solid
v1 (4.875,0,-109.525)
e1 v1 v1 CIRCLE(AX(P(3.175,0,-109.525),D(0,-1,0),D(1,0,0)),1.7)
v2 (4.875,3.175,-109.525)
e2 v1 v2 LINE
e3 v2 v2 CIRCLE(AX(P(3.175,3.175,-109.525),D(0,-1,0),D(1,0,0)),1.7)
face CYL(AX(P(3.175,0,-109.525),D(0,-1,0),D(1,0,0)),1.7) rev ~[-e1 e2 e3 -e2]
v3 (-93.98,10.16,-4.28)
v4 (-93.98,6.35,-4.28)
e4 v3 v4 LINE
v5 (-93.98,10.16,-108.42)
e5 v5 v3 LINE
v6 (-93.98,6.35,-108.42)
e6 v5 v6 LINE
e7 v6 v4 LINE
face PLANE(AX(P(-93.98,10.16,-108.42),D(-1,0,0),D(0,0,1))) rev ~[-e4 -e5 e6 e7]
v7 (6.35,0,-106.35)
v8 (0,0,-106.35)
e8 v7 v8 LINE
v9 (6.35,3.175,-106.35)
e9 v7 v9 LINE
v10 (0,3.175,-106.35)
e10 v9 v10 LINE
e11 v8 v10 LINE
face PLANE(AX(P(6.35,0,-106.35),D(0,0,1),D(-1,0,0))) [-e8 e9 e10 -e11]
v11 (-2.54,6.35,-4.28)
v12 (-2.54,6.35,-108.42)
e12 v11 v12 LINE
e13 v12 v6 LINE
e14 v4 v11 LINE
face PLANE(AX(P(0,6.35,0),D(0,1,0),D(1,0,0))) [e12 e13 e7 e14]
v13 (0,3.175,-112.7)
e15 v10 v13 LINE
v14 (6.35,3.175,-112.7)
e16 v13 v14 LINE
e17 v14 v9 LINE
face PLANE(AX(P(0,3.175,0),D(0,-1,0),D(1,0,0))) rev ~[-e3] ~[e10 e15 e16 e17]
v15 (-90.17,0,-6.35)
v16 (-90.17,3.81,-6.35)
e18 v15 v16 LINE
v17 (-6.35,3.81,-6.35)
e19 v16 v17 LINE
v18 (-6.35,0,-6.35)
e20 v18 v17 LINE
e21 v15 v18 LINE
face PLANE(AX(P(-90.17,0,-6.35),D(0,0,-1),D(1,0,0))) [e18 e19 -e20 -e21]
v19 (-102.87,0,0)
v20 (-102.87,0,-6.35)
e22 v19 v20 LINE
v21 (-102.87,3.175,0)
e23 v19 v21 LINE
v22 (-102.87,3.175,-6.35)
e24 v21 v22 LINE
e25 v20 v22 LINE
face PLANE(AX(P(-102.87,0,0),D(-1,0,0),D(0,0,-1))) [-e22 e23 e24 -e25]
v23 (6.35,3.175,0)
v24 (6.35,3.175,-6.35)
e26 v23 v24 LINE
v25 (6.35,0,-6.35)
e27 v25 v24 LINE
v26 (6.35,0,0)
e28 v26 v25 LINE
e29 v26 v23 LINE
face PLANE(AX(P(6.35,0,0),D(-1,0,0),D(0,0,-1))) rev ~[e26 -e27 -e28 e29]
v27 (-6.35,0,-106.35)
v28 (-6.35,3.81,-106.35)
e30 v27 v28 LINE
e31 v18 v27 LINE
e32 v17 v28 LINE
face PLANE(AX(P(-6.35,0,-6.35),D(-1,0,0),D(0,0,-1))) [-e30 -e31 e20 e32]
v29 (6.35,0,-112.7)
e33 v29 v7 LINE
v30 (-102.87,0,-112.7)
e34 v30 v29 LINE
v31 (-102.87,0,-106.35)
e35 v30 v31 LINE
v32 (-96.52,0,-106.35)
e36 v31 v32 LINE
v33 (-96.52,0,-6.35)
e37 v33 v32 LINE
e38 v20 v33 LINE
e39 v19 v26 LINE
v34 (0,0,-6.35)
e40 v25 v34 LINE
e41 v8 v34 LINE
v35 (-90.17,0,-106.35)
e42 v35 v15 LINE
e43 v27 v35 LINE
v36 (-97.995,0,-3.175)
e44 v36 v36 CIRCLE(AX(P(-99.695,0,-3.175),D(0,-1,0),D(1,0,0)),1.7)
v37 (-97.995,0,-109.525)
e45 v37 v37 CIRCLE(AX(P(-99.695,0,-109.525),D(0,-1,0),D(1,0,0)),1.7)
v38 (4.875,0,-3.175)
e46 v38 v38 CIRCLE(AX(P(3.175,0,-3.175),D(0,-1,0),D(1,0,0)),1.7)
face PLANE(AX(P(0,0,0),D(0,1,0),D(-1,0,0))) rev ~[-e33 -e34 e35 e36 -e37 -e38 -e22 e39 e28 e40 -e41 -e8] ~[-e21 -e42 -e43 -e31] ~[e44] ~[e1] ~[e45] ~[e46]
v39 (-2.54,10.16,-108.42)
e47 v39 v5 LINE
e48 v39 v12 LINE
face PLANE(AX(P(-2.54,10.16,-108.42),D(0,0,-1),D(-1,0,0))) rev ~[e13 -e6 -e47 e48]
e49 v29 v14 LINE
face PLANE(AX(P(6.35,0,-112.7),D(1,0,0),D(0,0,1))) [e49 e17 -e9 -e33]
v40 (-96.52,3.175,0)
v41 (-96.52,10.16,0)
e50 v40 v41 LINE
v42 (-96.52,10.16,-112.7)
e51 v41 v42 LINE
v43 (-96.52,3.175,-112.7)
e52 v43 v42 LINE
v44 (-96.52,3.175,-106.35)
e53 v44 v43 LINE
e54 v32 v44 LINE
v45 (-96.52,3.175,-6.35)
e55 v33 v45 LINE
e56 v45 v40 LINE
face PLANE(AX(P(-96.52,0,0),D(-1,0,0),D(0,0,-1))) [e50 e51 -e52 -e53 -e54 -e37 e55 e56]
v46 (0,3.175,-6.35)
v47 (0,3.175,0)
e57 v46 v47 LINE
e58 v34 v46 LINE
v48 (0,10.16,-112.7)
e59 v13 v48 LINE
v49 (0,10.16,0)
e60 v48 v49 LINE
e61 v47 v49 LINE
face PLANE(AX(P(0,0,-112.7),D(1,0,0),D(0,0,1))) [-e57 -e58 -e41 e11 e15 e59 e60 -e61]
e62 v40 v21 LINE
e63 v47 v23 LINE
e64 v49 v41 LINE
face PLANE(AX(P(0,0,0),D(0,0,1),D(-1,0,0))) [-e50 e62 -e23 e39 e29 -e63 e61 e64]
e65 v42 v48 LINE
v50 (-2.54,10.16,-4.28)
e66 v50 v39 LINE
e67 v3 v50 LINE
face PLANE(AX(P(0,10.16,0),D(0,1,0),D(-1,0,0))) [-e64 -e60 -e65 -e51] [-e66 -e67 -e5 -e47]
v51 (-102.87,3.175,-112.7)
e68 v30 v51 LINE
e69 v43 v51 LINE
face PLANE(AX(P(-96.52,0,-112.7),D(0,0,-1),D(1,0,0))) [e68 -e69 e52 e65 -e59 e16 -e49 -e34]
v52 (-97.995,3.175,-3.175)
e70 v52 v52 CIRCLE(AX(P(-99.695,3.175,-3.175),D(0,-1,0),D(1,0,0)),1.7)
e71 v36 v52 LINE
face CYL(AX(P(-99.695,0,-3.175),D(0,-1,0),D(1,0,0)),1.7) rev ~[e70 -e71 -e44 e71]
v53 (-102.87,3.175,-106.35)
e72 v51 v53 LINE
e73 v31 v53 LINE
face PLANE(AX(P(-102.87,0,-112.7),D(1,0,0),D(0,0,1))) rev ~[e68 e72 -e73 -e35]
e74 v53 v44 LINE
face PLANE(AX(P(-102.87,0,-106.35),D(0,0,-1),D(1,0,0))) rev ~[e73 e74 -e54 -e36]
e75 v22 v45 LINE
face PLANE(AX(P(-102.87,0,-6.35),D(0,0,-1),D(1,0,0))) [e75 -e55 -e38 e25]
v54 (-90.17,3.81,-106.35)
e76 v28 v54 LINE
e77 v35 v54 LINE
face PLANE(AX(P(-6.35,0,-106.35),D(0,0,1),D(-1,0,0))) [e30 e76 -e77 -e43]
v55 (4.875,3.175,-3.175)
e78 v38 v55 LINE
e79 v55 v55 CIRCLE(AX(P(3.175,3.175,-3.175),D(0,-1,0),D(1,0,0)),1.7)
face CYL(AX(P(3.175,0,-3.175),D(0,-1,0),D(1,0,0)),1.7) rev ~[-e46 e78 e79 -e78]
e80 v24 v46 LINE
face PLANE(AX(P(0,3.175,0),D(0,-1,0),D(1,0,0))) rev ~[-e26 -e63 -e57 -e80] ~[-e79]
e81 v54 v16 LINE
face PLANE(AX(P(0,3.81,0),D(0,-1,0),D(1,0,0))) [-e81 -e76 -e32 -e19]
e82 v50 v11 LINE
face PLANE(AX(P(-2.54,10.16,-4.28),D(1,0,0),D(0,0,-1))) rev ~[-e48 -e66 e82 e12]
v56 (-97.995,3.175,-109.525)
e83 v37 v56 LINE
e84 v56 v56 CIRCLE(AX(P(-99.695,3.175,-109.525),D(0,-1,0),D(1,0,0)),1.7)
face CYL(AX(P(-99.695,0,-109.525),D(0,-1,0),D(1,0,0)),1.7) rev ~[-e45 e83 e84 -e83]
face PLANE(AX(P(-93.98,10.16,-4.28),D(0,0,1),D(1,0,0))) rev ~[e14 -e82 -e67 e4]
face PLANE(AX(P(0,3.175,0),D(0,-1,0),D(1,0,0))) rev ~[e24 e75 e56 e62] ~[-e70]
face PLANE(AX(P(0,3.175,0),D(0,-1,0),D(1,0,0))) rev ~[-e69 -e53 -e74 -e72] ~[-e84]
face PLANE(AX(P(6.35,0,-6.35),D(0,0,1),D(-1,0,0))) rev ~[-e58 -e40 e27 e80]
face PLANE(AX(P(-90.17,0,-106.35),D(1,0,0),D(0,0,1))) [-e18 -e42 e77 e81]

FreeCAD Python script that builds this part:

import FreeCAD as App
import Part
import Sketcher
Q = App.Units.Quantity


def add_polygon(sketch, points):
    """Adds a closed chain of lines whose ends are joined by coincident constraints."""
    first, n = sketch.GeometryCount, len(points)
    for a, b in zip(points, points[1:] + points[:1]):
        sketch.addGeometry(Part.LineSegment(App.Vector(*a, 0), App.Vector(*b, 0)), False)
    for i in range(n):
        sketch.addConstraint(Sketcher.Constraint("Coincident", first + i, 2, first + (i + 1) % n, 1))

doc = App.newDocument("Part")
body = doc.addObject("PartDesign::Body", "Body")

# Sketch on XZ plane
sketch1 = doc.addObject("Sketcher::SketchObject", "Sketch")
body.addObject(sketch1)
sketch1.AttachmentSupport = (doc.XZ_Plane, [""])
sketch1.MapMode = "FlatFace"
add_polygon(sketch1, [(-96.52, 0), (0, 0), (0, -112.7), (-96.52, -112.7)])  # lines 0-3
sketch1.addConstraint([
    Sketcher.Constraint("Horizontal", 0),
    Sketcher.Constraint("Vertical", 1),
    Sketcher.Constraint("Horizontal", 2),
    Sketcher.Constraint("Vertical", 3),
    Sketcher.Constraint("Coincident", 0, 2, -1, 1),
    Sketcher.Constraint("DistanceX", 0, 1, 0, 2, Q("3.8 in")),
    Sketcher.Constraint("DistanceY", 1, 2, 1, 1, Q("4.437 in")),
])
pad1 = doc.addObject("PartDesign::Pad", "Pad")
body.addObject(pad1)
pad1.Profile = sketch1
pad1.Length = Q("0.4 in")
pad1.Reversed = True

# Sketch on XZ plane
sketch2 = doc.addObject("Sketcher::SketchObject", "Sketch001")
body.addObject(sketch2)
sketch2.AttachmentSupport = (doc.XZ_Plane, [""])
sketch2.MapMode = "FlatFace"
sketch2.AttachmentOffset = App.Placement(App.Vector(0, 0, -0.4 * 25.4), App.Rotation())
add_polygon(sketch2, [(-93.98, -108.42), (-93.98, -4.28), (-2.54, -4.28), (-2.54, -108.42)])  # lines 0-3
sketch2.addConstraint([
    Sketcher.Constraint("Vertical", 0),
    Sketcher.Constraint("Horizontal", 1),
    Sketcher.Constraint("Vertical", 2),
    Sketcher.Constraint("Horizontal", 3),
    Sketcher.Constraint("DistanceX", 1, 1, 1, 2, Q("3.6 in")),
    Sketcher.Constraint("DistanceY", 0, 1, 0, 2, Q("4.1 in")),
    Sketcher.Constraint("DistanceX", 0, 2, -1, 1, Q("3.7 in")),
    Sketcher.Constraint("DistanceY", 0, 2, -1, 1, Q("0.1685 in")),
])
pocket1 = doc.addObject("PartDesign::Pocket", "Pocket")
body.addObject(pocket1)
pocket1.Profile = sketch2
pocket1.Length = Q("0.15 in")
pocket1.Reversed = True

# Sketch on XZ plane
sketch3 = doc.addObject("Sketcher::SketchObject", "Sketch002")
body.addObject(sketch3)
sketch3.AttachmentSupport = (doc.XZ_Plane, [""])
sketch3.MapMode = "FlatFace"
add_polygon(sketch3, [(6.35, 0), (0, 0), (0, -6.35), (6.35, -6.35)])  # lines 0-3
sketch3.addGeometry(Part.Circle(App.Vector(3.175, -3.175, 0), App.Vector(0, 0, 1), 1.7), False)  # 4
add_polygon(sketch3, [(0, -106.35), (0, -112.7), (6.35, -112.7), (6.35, -106.35)])  # lines 5-8
sketch3.addGeometry(Part.Circle(App.Vector(3.175, -109.525, 0), App.Vector(0, 0, 1), 1.7), False)  # 9
add_polygon(sketch3, [(-96.52, -6.35), (-96.52, 0), (-102.87, 0), (-102.87, -6.35)])  # lines 10-13
sketch3.addGeometry(Part.Circle(App.Vector(-99.695, -3.175, 0), App.Vector(0, 0, 1), 1.7), False)  # 14
add_polygon(sketch3, [(-102.87, -112.7), (-96.52, -112.7), (-96.52, -106.35), (-102.87, -106.35)])  # lines 15-18
sketch3.addGeometry(Part.Circle(App.Vector(-99.695, -109.525, 0), App.Vector(0, 0, 1), 1.7), False)  # 19
sketch3.addConstraint([
    Sketcher.Constraint("Horizontal", 0),
    Sketcher.Constraint("Vertical", 1),
    Sketcher.Constraint("Horizontal", 2),
    Sketcher.Constraint("Vertical", 3),
    Sketcher.Constraint("Vertical", 5),
    Sketcher.Constraint("Horizontal", 6),
    Sketcher.Constraint("Vertical", 7),
    Sketcher.Constraint("Horizontal", 8),
    Sketcher.Constraint("Vertical", 10),
    Sketcher.Constraint("Horizontal", 11),
    Sketcher.Constraint("Vertical", 12),
    Sketcher.Constraint("Horizontal", 13),
    Sketcher.Constraint("Horizontal", 15),
    Sketcher.Constraint("Vertical", 16),
    Sketcher.Constraint("Horizontal", 17),
    Sketcher.Constraint("Vertical", 18),
    Sketcher.Constraint("Coincident", 0, 2, -1, 1),
    Sketcher.Constraint("Equal", 4, 9),
    Sketcher.Constraint("Equal", 9, 14),
    Sketcher.Constraint("Equal", 14, 19),
    Sketcher.Constraint("PointOnObject", 5, 2, -2),
    Sketcher.Constraint("PointOnObject", 10, 2, -1),
    Sketcher.Constraint("Horizontal", 4, 3, 14, 3),
    Sketcher.Constraint("Horizontal", 9, 3, 19, 3),
    Sketcher.Constraint("Horizontal", 2, 2, 12, 2),
    Sketcher.Constraint("Horizontal", 6, 2, 15, 2),
    Sketcher.Constraint("Horizontal", 8, 2, 16, 2),
    Sketcher.Constraint("Vertical", 4, 3, 9, 3),
    Sketcher.Constraint("Vertical", 14, 3, 19, 3),
    Sketcher.Constraint("Vertical", 3, 2, 6, 2),
    Sketcher.Constraint("Vertical", 13, 2, 15, 2),
    Sketcher.Constraint("Vertical", 12, 2, 17, 2),
    Sketcher.Constraint("Equal", 8, 11),
    Sketcher.Constraint("Equal", 17, 1),
    Sketcher.Constraint("Equal", 3, 5),
    Sketcher.Constraint("DistanceX", 0, 2, 0, 1, Q("0.25 in")),
    Sketcher.Constraint("Diameter", 4, Q("3.4 mm")),
    Sketcher.Constraint("DistanceX", 10, 2, -1, 1, Q("3.8 in")),
    Sketcher.Constraint("DistanceX", 14, 3, 4, 3, Q("4.05 in")),
    Sketcher.Constraint("DistanceX", -1, 1, 4, 3, Q("0.125 in")),
    Sketcher.Constraint("DistanceY", 4, 3, -1, 1, Q("0.125 in")),
    Sketcher.Constraint("DistanceY", 9, 3, -1, 1, Q("4.312 in")),
    Sketcher.Constraint("DistanceY", 5, 2, -1, 1, Q("4.437 in")),
])
pad2 = doc.addObject("PartDesign::Pad", "Pad001")
body.addObject(pad2)
pad2.Profile = sketch3
pad2.Length = Q("0.125 in")
pad2.Reversed = True

# Sketch on XZ plane
sketch4 = doc.addObject("Sketcher::SketchObject", "Sketch003")
body.addObject(sketch4)
sketch4.AttachmentSupport = (doc.XZ_Plane, [""])
sketch4.MapMode = "FlatFace"
add_polygon(sketch4, [(-90.17, -106.35), (-6.35, -106.35), (-6.35, -6.35), (-90.17, -6.35)])  # lines 0-3
sketch4.addConstraint([
    Sketcher.Constraint("Horizontal", 0),
    Sketcher.Constraint("Vertical", 1),
    Sketcher.Constraint("Horizontal", 2),
    Sketcher.Constraint("Vertical", 3),
    Sketcher.Constraint("DistanceX", 0, 2, -1, 1, Q("0.25 in")),
    Sketcher.Constraint("DistanceY", 1, 2, -1, 1, Q("0.25 in")),
    Sketcher.Constraint("DistanceX", 0, 1, 0, 2, Q("3.3 in")),
    Sketcher.Constraint("DistanceY", 1, 1, 1, 2, Q("3.937 in")),
])
pocket2 = doc.addObject("PartDesign::Pocket", "Pocket001")
body.addObject(pocket2)
pocket2.Profile = sketch4
pocket2.Length = Q("0.15 in")

doc.recompute()
